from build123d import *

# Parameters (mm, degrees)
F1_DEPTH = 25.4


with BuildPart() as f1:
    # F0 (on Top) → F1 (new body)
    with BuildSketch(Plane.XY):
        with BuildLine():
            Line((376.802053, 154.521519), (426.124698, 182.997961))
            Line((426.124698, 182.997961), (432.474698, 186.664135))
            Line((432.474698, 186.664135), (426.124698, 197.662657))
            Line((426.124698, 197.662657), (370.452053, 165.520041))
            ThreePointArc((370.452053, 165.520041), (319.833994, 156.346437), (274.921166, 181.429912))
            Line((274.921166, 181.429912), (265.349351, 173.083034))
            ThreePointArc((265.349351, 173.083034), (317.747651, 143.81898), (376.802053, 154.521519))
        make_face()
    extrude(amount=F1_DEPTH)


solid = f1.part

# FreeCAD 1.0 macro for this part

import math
import FreeCAD as App
import Part
import Sketcher

V = App.Vector
Q = App.Units.Quantity

doc = App.newDocument("Part")
body = doc.addObject("PartDesign::Body", "Body")

# Sketch on XY plane
sketch1 = body.newObject("Sketcher::SketchObject", "Sketch")
sketch1.AttachmentSupport = (doc.getObject("XY_Plane"), [""])
sketch1.MapMode = "FlatFace"
sketch1.addGeometry(Part.LineSegment(V(377, 155, 0), V(426, 183, 0)), False)
sketch1.addGeometry(Part.LineSegment(V(426, 183, 0), V(432, 187, 0)), False)
sketch1.addGeometry(Part.LineSegment(V(432, 187, 0), V(426, 198, 0)), False)
sketch1.addGeometry(Part.LineSegment(V(426, 198, 0), V(370, 166, 0)), False)
sketch1.addGeometry(Part.ArcOfCircle(Part.Circle(V(332, 232, 0), V(0, 0, 1), 76), math.radians(-139), math.radians(-60)), False)
sketch1.addGeometry(Part.LineSegment(V(275, 181, 0), V(265, 173, 0)), False)
sketch1.addGeometry(Part.ArcOfCircle(Part.Circle(V(332, 232, 0), V(0, 0, 1), 89), math.radians(-139), math.radians(-60)), False)
sketch1.addConstraint(Sketcher.Constraint("Coincident", 0, 2, 1, 1))
sketch1.addConstraint(Sketcher.Constraint("Coincident", 1, 2, 2, 1))
sketch1.addConstraint(Sketcher.Constraint("Coincident", 2, 2, 3, 1))
sketch1.addConstraint(Sketcher.Constraint("Tangent", 3, 2, 4, 2))
sketch1.addConstraint(Sketcher.Constraint("Coincident", 4, 1, 5, 1))
sketch1.addConstraint(Sketcher.Constraint("Coincident", 5, 2, 6, 1))
sketch1.addConstraint(Sketcher.Constraint("Tangent", 6, 2, 0, 1))
sketch1.addConstraint(Sketcher.Constraint("Coincident", 6, 3, 4, 3))
sketch1.addConstraint(Sketcher.Constraint("Parallel", 0, 1))
sketch1.addConstraint(Sketcher.Constraint("Perpendicular", 1, 2))
sketch1.addConstraint(Sketcher.Constraint("Perpendicular", 2, 3))
sketch1.addConstraint(Sketcher.Constraint("Vertical", 0, 2, 2, 2))
sketch1.addConstraint(Sketcher.Constraint("Radius", 4, Q("3 in")))
sketch1.addConstraint(Sketcher.Constraint("Radius", 6, Q("3.5 in")))
sketch1.addConstraint(Sketcher.Constraint("Angle", 0, Q("30 deg")))
sketch1.addConstraint(Sketcher.Constraint("DistanceX", -1, 1, 0, 2, 426.124698))
sketch1.addConstraint(Sketcher.Constraint("DistanceX", 5, 2, 6, 3, 67.002702))
sketch1.addConstraint(Sketcher.Constraint("DistanceY", -1, 1, 0, 2, 182.997961))
sketch1.addConstraint(Sketcher.Constraint("DistanceY", -1, 1, 3, 2, 165.520041))
sketch1.addConstraint(Sketcher.Constraint("DistanceY", 3, 2, 4, 1, 15.909871))
pad1 = body.newObject("PartDesign::Pad", "Pad")
pad1.Profile = sketch1
pad1.Length = Q("1 in")

doc.recompute()
